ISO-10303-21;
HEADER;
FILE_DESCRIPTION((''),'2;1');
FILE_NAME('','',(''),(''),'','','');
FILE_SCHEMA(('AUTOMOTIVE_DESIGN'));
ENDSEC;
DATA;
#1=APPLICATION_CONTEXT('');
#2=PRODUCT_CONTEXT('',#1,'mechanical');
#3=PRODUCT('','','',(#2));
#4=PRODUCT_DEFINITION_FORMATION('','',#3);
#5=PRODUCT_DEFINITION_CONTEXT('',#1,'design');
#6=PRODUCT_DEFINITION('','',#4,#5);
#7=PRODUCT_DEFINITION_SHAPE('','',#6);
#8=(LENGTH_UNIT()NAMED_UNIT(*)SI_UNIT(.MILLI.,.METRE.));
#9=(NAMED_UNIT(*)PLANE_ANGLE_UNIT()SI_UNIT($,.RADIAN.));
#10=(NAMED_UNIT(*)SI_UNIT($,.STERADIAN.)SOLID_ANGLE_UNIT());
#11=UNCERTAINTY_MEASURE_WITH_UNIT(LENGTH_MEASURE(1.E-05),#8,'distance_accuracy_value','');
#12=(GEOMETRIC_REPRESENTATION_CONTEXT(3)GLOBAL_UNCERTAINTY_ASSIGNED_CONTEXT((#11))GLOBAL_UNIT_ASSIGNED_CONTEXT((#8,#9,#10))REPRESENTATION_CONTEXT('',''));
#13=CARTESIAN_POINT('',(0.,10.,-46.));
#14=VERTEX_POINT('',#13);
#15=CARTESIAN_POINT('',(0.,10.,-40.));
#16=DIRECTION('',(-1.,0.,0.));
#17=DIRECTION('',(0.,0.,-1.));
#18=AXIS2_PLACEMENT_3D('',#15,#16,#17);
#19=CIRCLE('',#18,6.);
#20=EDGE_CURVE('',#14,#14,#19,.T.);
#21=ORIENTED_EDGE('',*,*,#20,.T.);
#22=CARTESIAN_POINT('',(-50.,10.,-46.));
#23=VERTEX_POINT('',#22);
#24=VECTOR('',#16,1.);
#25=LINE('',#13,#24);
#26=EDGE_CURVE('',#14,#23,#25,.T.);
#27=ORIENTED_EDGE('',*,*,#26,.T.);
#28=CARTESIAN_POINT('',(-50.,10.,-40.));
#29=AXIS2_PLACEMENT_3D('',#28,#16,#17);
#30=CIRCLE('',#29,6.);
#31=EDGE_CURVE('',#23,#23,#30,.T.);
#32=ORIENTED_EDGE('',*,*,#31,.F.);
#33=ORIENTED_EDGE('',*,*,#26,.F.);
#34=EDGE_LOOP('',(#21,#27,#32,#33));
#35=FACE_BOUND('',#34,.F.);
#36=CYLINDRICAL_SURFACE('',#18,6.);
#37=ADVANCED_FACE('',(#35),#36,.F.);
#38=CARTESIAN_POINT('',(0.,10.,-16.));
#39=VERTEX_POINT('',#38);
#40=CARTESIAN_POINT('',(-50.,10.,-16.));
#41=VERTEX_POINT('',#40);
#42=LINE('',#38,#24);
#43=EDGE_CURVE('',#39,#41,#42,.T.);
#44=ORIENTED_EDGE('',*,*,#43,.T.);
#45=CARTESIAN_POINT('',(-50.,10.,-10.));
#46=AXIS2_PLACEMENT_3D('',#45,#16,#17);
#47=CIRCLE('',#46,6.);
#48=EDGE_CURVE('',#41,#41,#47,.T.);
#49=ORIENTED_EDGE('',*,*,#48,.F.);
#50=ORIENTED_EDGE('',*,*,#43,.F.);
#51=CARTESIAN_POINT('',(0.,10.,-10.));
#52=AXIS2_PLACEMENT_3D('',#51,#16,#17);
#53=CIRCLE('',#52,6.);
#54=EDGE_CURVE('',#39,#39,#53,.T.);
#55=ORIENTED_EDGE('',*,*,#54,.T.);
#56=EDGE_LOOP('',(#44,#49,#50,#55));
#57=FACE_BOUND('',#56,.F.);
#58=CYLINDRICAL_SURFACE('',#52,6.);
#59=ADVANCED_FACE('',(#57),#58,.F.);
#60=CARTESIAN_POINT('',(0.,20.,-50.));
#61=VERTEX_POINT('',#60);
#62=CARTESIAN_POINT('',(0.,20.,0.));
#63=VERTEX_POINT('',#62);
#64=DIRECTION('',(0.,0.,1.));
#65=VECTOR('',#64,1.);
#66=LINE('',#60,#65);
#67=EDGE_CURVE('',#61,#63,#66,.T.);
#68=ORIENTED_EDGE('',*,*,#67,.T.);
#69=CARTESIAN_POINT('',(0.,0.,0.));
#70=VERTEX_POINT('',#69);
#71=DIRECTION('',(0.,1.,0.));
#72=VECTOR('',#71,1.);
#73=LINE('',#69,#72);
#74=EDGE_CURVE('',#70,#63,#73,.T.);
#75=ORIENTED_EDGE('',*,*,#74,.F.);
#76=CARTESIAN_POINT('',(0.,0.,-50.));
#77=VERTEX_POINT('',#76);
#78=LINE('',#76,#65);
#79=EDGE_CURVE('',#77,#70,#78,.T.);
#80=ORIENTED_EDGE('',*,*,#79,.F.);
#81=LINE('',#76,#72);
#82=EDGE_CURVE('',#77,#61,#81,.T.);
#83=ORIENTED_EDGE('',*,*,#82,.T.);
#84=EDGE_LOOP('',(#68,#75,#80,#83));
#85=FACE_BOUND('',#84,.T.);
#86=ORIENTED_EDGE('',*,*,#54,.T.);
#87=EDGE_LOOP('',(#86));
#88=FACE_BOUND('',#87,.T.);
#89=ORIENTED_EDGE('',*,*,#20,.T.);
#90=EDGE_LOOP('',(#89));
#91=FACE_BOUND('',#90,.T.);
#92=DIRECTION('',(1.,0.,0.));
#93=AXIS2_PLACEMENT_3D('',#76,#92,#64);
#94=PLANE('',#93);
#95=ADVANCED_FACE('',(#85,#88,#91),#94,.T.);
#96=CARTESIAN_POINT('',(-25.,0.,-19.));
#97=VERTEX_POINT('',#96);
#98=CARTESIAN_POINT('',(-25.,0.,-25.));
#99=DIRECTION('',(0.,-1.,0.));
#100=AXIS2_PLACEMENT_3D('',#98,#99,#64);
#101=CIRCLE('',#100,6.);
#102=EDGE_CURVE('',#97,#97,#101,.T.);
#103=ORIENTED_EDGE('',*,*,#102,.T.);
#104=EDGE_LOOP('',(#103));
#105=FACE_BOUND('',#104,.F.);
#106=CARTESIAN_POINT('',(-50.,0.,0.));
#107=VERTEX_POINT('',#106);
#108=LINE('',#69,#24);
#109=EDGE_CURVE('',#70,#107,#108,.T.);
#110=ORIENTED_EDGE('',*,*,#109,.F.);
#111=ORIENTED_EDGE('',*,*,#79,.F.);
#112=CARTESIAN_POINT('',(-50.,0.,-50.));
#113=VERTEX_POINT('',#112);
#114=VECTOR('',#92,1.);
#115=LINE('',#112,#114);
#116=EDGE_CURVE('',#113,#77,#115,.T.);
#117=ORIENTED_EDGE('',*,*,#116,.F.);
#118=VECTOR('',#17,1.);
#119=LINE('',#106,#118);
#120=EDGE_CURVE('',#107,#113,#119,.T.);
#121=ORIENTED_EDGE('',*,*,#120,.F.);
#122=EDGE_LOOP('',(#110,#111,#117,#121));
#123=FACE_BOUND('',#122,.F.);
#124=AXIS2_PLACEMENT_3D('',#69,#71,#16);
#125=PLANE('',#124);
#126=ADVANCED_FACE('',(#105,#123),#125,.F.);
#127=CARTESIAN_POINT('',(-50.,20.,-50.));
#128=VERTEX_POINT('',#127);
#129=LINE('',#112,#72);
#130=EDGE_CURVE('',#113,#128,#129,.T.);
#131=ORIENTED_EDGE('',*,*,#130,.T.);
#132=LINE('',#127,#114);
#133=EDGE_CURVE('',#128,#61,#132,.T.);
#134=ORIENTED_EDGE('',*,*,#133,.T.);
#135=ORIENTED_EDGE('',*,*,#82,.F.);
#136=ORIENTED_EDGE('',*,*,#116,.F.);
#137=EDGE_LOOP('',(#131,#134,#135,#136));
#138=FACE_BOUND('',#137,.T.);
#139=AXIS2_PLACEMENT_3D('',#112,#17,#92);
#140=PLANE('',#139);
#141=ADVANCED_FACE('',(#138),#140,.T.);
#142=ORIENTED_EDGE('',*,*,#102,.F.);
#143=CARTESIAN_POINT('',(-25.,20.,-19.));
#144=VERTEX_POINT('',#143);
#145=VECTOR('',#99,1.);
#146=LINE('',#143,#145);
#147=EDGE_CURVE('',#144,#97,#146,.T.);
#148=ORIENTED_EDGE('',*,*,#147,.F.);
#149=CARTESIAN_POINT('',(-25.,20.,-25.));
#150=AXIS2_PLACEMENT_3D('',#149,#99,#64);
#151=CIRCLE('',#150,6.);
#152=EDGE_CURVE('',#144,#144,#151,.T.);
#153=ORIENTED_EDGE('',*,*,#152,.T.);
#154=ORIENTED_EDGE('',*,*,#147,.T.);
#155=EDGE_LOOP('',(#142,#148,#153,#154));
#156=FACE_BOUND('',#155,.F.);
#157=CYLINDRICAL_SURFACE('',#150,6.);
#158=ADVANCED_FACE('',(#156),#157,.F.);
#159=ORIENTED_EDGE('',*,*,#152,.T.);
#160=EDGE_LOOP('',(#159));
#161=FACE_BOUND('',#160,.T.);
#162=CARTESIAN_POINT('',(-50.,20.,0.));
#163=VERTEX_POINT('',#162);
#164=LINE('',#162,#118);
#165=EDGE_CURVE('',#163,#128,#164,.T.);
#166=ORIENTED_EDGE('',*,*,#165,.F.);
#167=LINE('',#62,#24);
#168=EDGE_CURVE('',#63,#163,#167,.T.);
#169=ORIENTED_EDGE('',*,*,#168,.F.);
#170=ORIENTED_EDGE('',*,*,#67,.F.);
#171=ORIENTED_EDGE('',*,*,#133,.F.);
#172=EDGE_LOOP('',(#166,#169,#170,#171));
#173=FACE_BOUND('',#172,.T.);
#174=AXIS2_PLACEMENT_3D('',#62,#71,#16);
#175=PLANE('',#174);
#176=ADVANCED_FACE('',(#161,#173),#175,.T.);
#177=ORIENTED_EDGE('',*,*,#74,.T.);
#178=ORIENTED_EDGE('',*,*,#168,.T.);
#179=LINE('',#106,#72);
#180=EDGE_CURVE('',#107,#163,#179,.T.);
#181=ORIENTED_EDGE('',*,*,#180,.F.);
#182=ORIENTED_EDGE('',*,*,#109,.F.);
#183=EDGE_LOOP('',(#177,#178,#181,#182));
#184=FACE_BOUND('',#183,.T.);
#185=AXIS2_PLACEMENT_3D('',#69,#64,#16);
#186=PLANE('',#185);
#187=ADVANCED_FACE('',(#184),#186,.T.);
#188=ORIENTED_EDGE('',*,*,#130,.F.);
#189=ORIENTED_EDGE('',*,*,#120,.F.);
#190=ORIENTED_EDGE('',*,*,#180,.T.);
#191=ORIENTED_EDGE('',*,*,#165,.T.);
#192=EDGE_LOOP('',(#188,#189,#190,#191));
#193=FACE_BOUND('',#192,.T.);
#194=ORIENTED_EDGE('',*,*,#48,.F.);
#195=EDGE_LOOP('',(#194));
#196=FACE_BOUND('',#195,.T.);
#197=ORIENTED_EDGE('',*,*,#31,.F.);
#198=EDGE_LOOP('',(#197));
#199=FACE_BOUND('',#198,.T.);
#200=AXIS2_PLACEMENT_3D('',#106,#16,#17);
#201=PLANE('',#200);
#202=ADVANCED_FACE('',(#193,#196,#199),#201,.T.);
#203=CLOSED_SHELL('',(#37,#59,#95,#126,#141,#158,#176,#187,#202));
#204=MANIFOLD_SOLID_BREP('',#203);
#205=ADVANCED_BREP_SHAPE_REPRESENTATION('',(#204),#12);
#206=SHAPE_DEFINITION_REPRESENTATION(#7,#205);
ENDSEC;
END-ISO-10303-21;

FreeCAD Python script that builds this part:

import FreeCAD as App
import Part
import Sketcher
from FreeCAD import Vector
Q = App.Units.Quantity


def add_polygon(sketch, points):
    """Adds a closed chain of lines whose ends are joined by coincident constraints."""
    first, n = sketch.GeometryCount, len(points)
    for a, b in zip(points, points[1:] + points[:1]):
        sketch.addGeometry(Part.LineSegment(App.Vector(*a, 0), App.Vector(*b, 0)), False)
    for i in range(n):
        sketch.addConstraint(Sketcher.Constraint("Coincident", first + i, 2, first + (i + 1) % n, 1))

doc = App.newDocument("Part")
params = doc.addObject("Spreadsheet::Sheet", "Params")
for row, (alias, value) in enumerate([
    ("sketch1_width", "50 mm"),
    ("pad1_length", "20 mm"),
    ("sketch2_diameter", "12 mm"),
    ("hole_diameter", "12 mm"),
    ("hole_depth", "50 mm"),
    ("sketch3_diameter", "12 mm"),
    ("hole2_diameter", "12 mm"),
    ("hole2_depth", "50 mm"),
], start=1):
    params.set(f"A{row}", alias)
    params.set(f"B{row}", "=" + value)
    params.setAlias(f"B{row}", alias)

body = doc.addObject("PartDesign::Body", "Body")

sketch1 = body.newObject("Sketcher::SketchObject", "Sketch")
sketch1.AttachmentSupport = (doc.getObject("XZ_Plane"), [""])
sketch1.MapMode = "FlatFace"
add_polygon(sketch1, [(-50, 0), (0, 0), (0, -50), (-50, -50)])
sketch1.addConstraint([
    Sketcher.Constraint("Horizontal", 0),
    Sketcher.Constraint("Vertical", 1),
    Sketcher.Constraint("Horizontal", 2),
    Sketcher.Constraint("Vertical", 3),
    Sketcher.Constraint("Coincident", 0, 2, -1, 1),
    Sketcher.Constraint("Equal", 2, 1),
    Sketcher.Constraint("DistanceX", 0, 1, 0, 2, Q("50 mm")),
])
sketch1.setExpression("Constraints[10]", "Params.sketch1_width")
pad1 = body.newObject("PartDesign::Pad", "Pad")
pad1.Profile = sketch1
pad1.setExpression("Length", "Params.pad1_length")
pad1.Reversed = True

sketch2 = body.newObject("Sketcher::SketchObject", "Sketch001")
sketch2.AttachmentSupport = (doc.getObject("YZ_Plane"), [""])
sketch2.MapMode = "FlatFace"
sketch2.addGeometry([
    Part.Circle(Vector(10, -10, 0), Vector(0, 0, 1), 6),
    Part.Circle(Vector(10, -40, 0), Vector(0, 0, 1), 6),
], False)
sketch2.addConstraint([
    Sketcher.Constraint("Equal", 0, 1),
    Sketcher.Constraint("Vertical", 0, 3, 1, 3),
    Sketcher.Constraint("Diameter", 0, Q("12 mm")),
    Sketcher.Constraint("DistanceX", -1, 1, 0, 3, Q("10 mm")),
    Sketcher.Constraint("DistanceY", 0, 3, -1, 1, Q("10 mm")),
    Sketcher.Constraint("DistanceY", 1, 3, -1, 1, Q("40 mm")),
])
sketch2.setExpression("Constraints[2]", "Params.sketch2_diameter")
doc.recompute()
hole = body.newObject("PartDesign::Hole", "Hole")
hole.Profile = sketch2
hole.ThreadType = "None"
hole.setExpression("Diameter", "Params.hole_diameter")
hole.DepthType = "Dimension"
hole.setExpression("Depth", "Params.hole_depth")
hole.DrillPoint = "Angled"
hole.DrillPointAngle = 118

sketch3 = body.newObject("Sketcher::SketchObject", "Sketch002")
sketch3.AttachmentSupport = (doc.getObject("XZ_Plane"), [""])
sketch3.MapMode = "FlatFace"
sketch3.AttachmentOffset = App.Placement(Vector(0, 0, -20), App.Rotation())
sketch3.addGeometry(Part.Circle(Vector(-25, -25, 0), Vector(0, 0, 1), 6), False)
sketch3.addConstraint([
    Sketcher.Constraint("Diameter", 0, Q("12 mm")),
    Sketcher.Constraint("DistanceX", 0, 3, -1, 1, Q("25 mm")),
    Sketcher.Constraint("DistanceY", 0, 3, -1, 1, Q("25 mm")),
])
sketch3.setExpression("Constraints[0]", "Params.sketch3_diameter")
doc.recompute()
hole2 = body.newObject("PartDesign::Hole", "Hole001")
hole2.Profile = sketch3
hole2.ThreadType = "None"
hole2.setExpression("Diameter", "Params.hole2_diameter")
hole2.DepthType = "Dimension"
hole2.setExpression("Depth", "Params.hole2_depth")
hole2.DrillPoint = "Angled"
hole2.DrillPointAngle = 118
hole2.Reversed = True

doc.recompute()
